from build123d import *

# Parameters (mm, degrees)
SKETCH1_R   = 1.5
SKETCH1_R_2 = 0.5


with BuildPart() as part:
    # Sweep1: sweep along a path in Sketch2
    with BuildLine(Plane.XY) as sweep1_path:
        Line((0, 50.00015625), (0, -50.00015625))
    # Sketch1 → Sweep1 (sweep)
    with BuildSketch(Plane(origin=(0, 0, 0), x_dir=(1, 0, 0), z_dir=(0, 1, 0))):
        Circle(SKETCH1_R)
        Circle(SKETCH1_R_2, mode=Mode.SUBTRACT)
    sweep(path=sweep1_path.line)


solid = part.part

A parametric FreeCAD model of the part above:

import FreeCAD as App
import Part
import Sketcher

doc = App.newDocument("Part")
body = doc.addObject("PartDesign::Body", "Body")

sketch1 = body.newObject("Sketcher::SketchObject", "Sketch")
sketch1.AttachmentSupport = (doc.getObject("XZ_Plane"), [""])
sketch1.MapMode = "FlatFace"
sketch1.addGeometry([
    Part.Circle(App.Vector(0, 0, 0), App.Vector(0, 0, 1), 1.5),
    Part.Circle(App.Vector(0, 0, 0), App.Vector(0, 0, 1), 0.5),
], False)
sketch1.addConstraint([
    Sketcher.Constraint("Coincident", 0, 3, -1, 1),
    Sketcher.Constraint("Coincident", 1, 3, -1, 1),
    Sketcher.Constraint("Diameter", 0, 3.0),
    Sketcher.Constraint("Diameter", 1, 1.0),
])

sketch2 = body.newObject("Sketcher::SketchObject", "Sketch001")
sketch2.AttachmentSupport = (doc.getObject("XY_Plane"), [""])
sketch2.MapMode = "FlatFace"
sketch2.addGeometry(Part.LineSegment(App.Vector(0, 50.000156, 0), App.Vector(0, -50.000156, 0)), False)
sketch2.addConstraint([
    Sketcher.Constraint("Vertical", 0),
    Sketcher.Constraint("Symmetric", 0, 1, 0, 2, -1, 1),
    Sketcher.Constraint("DistanceY", 0, 2, 0, 1, 100.000313),
])
doc.recompute()

additivepipe = body.newObject("PartDesign::AdditivePipe", "AdditivePipe")
additivepipe.Profile = sketch1
additivepipe.Spine = (sketch2, ["Edge1"])

doc.recompute()
